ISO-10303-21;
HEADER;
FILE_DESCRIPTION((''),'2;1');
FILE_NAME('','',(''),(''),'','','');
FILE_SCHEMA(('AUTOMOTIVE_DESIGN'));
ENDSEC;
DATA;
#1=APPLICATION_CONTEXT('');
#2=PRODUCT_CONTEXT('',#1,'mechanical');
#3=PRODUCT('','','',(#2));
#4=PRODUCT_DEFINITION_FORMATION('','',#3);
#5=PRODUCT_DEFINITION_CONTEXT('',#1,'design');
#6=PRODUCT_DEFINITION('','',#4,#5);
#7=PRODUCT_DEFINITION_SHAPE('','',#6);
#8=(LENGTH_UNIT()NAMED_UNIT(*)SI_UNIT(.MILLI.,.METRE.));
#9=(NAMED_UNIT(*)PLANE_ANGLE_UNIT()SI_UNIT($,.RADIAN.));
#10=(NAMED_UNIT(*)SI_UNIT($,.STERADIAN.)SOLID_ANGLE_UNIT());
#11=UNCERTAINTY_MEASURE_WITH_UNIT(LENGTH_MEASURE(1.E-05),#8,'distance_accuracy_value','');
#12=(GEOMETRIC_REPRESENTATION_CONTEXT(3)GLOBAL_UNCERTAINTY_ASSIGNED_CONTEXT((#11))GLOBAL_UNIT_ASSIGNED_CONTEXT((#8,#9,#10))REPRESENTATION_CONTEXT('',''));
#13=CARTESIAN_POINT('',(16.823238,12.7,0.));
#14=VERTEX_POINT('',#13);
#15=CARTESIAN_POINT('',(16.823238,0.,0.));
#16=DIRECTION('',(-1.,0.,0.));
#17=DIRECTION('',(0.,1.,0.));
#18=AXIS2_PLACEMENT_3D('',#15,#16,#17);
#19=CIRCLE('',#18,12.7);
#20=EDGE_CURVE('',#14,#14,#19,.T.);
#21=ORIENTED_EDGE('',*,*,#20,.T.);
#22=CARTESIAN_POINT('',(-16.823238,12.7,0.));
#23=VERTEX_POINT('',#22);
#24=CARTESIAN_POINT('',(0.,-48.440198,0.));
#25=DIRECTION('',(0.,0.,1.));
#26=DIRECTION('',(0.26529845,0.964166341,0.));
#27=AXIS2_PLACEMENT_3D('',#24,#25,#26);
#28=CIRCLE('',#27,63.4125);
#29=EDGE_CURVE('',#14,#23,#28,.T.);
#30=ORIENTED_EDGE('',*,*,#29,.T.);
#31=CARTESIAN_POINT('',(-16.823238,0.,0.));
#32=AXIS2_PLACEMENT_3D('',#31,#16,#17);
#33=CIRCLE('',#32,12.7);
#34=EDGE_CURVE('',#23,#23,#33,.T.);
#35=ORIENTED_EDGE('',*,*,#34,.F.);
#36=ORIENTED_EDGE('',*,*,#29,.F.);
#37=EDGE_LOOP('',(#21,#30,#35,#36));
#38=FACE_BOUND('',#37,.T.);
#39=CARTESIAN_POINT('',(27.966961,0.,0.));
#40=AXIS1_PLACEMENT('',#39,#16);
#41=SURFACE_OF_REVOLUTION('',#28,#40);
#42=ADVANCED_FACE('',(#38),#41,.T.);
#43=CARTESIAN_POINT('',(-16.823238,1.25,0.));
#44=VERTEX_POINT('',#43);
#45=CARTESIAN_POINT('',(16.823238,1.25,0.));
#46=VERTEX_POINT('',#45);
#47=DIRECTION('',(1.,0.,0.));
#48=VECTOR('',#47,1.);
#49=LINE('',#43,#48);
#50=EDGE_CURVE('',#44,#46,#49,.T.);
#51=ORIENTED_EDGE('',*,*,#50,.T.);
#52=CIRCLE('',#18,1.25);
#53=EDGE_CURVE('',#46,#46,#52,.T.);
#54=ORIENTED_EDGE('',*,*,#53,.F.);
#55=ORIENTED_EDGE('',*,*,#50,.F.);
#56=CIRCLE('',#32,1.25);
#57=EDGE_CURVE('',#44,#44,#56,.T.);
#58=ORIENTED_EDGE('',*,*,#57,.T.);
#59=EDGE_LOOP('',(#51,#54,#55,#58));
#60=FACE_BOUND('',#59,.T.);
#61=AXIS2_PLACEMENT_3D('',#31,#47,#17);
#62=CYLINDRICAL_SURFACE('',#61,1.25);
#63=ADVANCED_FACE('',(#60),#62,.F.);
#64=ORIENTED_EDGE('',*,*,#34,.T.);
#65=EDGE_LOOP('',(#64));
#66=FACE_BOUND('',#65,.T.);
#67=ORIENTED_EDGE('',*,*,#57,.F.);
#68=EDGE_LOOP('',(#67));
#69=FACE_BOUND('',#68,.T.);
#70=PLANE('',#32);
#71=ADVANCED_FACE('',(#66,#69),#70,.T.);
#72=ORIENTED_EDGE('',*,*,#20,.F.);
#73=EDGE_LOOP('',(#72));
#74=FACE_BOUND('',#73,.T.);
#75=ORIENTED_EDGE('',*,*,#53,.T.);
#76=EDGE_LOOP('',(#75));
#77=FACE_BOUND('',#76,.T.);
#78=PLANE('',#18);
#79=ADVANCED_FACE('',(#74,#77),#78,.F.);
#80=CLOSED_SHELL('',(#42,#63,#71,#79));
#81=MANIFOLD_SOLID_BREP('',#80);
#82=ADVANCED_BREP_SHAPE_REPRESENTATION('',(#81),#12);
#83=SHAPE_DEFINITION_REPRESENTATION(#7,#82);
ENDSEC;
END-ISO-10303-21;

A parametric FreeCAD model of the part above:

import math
import FreeCAD as App
import Part
import Sketcher
Q = App.Units.Quantity

doc = App.newDocument("Part")
body = doc.addObject("PartDesign::Body", "Body")

# Sketch on XY plane
sketch1 = doc.addObject("Sketcher::SketchObject", "Sketch")
body.addObject(sketch1)
sketch1.AttachmentSupport = (doc.XY_Plane, [""])
sketch1.MapMode = "FlatFace"
sketch1.addGeometry([
    Part.LineSegment(App.Vector(-17, 13, 0), App.Vector(-17, 1, 0)),
    Part.LineSegment(App.Vector(-17, 1, 0), App.Vector(17, 1, 0)),
    Part.LineSegment(App.Vector(17, 1, 0), App.Vector(17, 13, 0)),
    Part.ArcOfCircle(Part.Circle(App.Vector(0, -48, 0), App.Vector(0, 0, 1), 63), math.radians(75), math.radians(105)),
], False)
sketch1.addConstraint([
    Sketcher.Constraint("Coincident", 0, 2, 1, 1),
    Sketcher.Constraint("Coincident", 1, 2, 2, 1),
    Sketcher.Constraint("Coincident", 2, 2, 3, 1),
    Sketcher.Constraint("Coincident", 3, 2, 0, 1),
    Sketcher.Constraint("Vertical", 0),
    Sketcher.Constraint("Horizontal", 1),
    Sketcher.Constraint("Vertical", 2),
    Sketcher.Constraint("Symmetric", 2, 2, 3, 2, -2),
    Sketcher.Constraint("DistanceY", 0, 2, 0, 1, Q("11.45 mm")),
    Sketcher.Constraint("DistanceY", -1, 1, 2, 2, Q("12.7 mm")),
    Sketcher.Constraint("Radius", 3, Q("63.4125 mm")),
    Sketcher.Constraint("DistanceY", 3, 3, -1, 1, Q("48.440198 mm")),
])
revolution = doc.addObject("PartDesign::Revolution", "Revolution")
body.addObject(revolution)
revolution.Profile = sketch1
revolution.ReferenceAxis = (sketch1, ["H_Axis"])
revolution.Angle = 360

doc.recompute()
